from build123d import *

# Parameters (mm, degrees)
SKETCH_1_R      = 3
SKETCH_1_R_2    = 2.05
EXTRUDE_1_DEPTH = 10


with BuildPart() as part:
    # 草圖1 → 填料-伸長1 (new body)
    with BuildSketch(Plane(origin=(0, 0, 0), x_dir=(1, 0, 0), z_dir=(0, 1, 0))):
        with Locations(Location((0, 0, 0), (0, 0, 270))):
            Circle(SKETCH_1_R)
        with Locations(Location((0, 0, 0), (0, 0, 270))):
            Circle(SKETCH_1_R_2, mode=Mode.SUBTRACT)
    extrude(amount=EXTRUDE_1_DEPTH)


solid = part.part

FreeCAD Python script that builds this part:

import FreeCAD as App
import Part
import Sketcher

V = App.Vector
Q = App.Units.Quantity

doc = App.newDocument("Part")
body = doc.addObject("PartDesign::Body", "Body")

sketch1 = body.newObject("Sketcher::SketchObject", "Sketch")
sketch1.AttachmentSupport = (doc.getObject("XZ_Plane"), [""])
sketch1.MapMode = "FlatFace"
sketch1.addGeometry([
    Part.Circle(V(0, 0, 0), V(0, 0, 1), 3),
    Part.Circle(V(0, 0, 0), V(0, 0, 1), 2),
], False)
sketch1.addConstraint([
    Sketcher.Constraint("Coincident", 0, 3, -1, 1),
    Sketcher.Constraint("Coincident", 1, 3, -1, 1),
    Sketcher.Constraint("Diameter", 0, Q("6 mm")),
    Sketcher.Constraint("Diameter", 1, Q("4.1 mm")),
])
pad1 = body.newObject("PartDesign::Pad", "Pad")
pad1.Profile = sketch1
pad1.Length = 10
pad1.Reversed = True

doc.recompute()
